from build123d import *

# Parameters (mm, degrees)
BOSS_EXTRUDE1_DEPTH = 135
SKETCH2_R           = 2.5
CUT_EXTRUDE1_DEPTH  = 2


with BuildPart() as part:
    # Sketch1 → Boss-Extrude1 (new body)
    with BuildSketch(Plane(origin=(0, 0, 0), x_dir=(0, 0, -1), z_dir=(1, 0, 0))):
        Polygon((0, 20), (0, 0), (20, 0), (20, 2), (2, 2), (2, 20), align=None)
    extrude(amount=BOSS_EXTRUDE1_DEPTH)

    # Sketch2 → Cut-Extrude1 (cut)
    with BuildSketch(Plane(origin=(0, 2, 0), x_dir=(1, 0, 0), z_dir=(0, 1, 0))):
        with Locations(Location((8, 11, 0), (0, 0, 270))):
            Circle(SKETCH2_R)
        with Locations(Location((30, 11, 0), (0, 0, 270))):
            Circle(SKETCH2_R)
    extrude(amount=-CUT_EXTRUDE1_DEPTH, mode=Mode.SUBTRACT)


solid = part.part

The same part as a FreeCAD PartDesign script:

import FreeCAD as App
import Part
import Sketcher
from FreeCAD import Vector


def add_polygon(sketch, points):
    """Adds a closed chain of lines whose ends are joined by coincident constraints."""
    first, n = sketch.GeometryCount, len(points)
    for a, b in zip(points, points[1:] + points[:1]):
        sketch.addGeometry(Part.LineSegment(App.Vector(*a, 0), App.Vector(*b, 0)), False)
    for i in range(n):
        sketch.addConstraint(Sketcher.Constraint("Coincident", first + i, 2, first + (i + 1) % n, 1))

doc = App.newDocument("Part")
params = doc.addObject("Spreadsheet::Sheet", "Params")
for row, (alias, value) in enumerate([
    ("sketch1_width", "20 mm"),
    ("sketch1_width2", "2 mm"),
    ("pad1_length", "135 mm"),
    ("sketch2_diameter", "5 mm"),
    ("pocket1_length", "2 mm"),
], start=1):
    params.set(f"A{row}", alias)
    params.set(f"B{row}", "=" + value)
    params.setAlias(f"B{row}", alias)

body = doc.addObject("PartDesign::Body", "Body")

# Sketch on YZ plane
sketch1 = body.newObject("Sketcher::SketchObject", "Sketch")
sketch1.AttachmentSupport = (doc.getObject("YZ_Plane"), [""])
sketch1.MapMode = "FlatFace"
add_polygon(sketch1, [(20, 0), (0, 0), (0, -20), (2, -20), (2, -2), (20, -2)])  # lines 0-5
sketch1.addConstraint([
    Sketcher.Constraint("Horizontal", 0),
    Sketcher.Constraint("Vertical", 1),
    Sketcher.Constraint("Horizontal", 2),
    Sketcher.Constraint("Vertical", 3),
    Sketcher.Constraint("Horizontal", 4),
    Sketcher.Constraint("Vertical", 5),
    Sketcher.Constraint("Coincident", 0, 2, -1, 1),
    Sketcher.Constraint("Equal", 0, 1),
    Sketcher.Constraint("Equal", 4, 3),
    Sketcher.Constraint("DistanceX", 0, 2, 0, 1, 20.0),
    Sketcher.Constraint("DistanceX", 2, 1, 2, 2, 2.0),
])
sketch1.setExpression("Constraints[15]", "Params.sketch1_width")
sketch1.setExpression("Constraints[16]", "Params.sketch1_width2")
pad1 = body.newObject("PartDesign::Pad", "Pad")
pad1.Profile = sketch1
pad1.setExpression("Length", "Params.pad1_length")

# Sketch on XZ plane
sketch2 = body.newObject("Sketcher::SketchObject", "Sketch001")
sketch2.AttachmentSupport = (doc.getObject("XZ_Plane"), [""])
sketch2.MapMode = "FlatFace"
sketch2.AttachmentOffset = App.Placement(Vector(0, 0, -2), App.Rotation())
sketch2.addGeometry([
    Part.Circle(Vector(8, -11, 0), Vector(0, 0, 1), 2.5),
    Part.Circle(Vector(30, -11, 0), Vector(0, 0, 1), 2.5),
], False)
sketch2.addConstraint([
    Sketcher.Constraint("Equal", 0, 1),
    Sketcher.Constraint("Horizontal", 0, 3, 1, 3),
    Sketcher.Constraint("Diameter", 0, 5.0),
    Sketcher.Constraint("DistanceX", -1, 1, 0, 3, 8.0),
    Sketcher.Constraint("DistanceY", 0, 3, -1, 1, 11.0),
    Sketcher.Constraint("DistanceX", -1, 1, 1, 3, 30.0),
])
sketch2.setExpression("Constraints[2]", "Params.sketch2_diameter")
pocket1 = body.newObject("PartDesign::Pocket", "Pocket")
pocket1.Profile = sketch2
pocket1.setExpression("Length", "Params.pocket1_length")
pocket1.Reversed = True

doc.recompute()
